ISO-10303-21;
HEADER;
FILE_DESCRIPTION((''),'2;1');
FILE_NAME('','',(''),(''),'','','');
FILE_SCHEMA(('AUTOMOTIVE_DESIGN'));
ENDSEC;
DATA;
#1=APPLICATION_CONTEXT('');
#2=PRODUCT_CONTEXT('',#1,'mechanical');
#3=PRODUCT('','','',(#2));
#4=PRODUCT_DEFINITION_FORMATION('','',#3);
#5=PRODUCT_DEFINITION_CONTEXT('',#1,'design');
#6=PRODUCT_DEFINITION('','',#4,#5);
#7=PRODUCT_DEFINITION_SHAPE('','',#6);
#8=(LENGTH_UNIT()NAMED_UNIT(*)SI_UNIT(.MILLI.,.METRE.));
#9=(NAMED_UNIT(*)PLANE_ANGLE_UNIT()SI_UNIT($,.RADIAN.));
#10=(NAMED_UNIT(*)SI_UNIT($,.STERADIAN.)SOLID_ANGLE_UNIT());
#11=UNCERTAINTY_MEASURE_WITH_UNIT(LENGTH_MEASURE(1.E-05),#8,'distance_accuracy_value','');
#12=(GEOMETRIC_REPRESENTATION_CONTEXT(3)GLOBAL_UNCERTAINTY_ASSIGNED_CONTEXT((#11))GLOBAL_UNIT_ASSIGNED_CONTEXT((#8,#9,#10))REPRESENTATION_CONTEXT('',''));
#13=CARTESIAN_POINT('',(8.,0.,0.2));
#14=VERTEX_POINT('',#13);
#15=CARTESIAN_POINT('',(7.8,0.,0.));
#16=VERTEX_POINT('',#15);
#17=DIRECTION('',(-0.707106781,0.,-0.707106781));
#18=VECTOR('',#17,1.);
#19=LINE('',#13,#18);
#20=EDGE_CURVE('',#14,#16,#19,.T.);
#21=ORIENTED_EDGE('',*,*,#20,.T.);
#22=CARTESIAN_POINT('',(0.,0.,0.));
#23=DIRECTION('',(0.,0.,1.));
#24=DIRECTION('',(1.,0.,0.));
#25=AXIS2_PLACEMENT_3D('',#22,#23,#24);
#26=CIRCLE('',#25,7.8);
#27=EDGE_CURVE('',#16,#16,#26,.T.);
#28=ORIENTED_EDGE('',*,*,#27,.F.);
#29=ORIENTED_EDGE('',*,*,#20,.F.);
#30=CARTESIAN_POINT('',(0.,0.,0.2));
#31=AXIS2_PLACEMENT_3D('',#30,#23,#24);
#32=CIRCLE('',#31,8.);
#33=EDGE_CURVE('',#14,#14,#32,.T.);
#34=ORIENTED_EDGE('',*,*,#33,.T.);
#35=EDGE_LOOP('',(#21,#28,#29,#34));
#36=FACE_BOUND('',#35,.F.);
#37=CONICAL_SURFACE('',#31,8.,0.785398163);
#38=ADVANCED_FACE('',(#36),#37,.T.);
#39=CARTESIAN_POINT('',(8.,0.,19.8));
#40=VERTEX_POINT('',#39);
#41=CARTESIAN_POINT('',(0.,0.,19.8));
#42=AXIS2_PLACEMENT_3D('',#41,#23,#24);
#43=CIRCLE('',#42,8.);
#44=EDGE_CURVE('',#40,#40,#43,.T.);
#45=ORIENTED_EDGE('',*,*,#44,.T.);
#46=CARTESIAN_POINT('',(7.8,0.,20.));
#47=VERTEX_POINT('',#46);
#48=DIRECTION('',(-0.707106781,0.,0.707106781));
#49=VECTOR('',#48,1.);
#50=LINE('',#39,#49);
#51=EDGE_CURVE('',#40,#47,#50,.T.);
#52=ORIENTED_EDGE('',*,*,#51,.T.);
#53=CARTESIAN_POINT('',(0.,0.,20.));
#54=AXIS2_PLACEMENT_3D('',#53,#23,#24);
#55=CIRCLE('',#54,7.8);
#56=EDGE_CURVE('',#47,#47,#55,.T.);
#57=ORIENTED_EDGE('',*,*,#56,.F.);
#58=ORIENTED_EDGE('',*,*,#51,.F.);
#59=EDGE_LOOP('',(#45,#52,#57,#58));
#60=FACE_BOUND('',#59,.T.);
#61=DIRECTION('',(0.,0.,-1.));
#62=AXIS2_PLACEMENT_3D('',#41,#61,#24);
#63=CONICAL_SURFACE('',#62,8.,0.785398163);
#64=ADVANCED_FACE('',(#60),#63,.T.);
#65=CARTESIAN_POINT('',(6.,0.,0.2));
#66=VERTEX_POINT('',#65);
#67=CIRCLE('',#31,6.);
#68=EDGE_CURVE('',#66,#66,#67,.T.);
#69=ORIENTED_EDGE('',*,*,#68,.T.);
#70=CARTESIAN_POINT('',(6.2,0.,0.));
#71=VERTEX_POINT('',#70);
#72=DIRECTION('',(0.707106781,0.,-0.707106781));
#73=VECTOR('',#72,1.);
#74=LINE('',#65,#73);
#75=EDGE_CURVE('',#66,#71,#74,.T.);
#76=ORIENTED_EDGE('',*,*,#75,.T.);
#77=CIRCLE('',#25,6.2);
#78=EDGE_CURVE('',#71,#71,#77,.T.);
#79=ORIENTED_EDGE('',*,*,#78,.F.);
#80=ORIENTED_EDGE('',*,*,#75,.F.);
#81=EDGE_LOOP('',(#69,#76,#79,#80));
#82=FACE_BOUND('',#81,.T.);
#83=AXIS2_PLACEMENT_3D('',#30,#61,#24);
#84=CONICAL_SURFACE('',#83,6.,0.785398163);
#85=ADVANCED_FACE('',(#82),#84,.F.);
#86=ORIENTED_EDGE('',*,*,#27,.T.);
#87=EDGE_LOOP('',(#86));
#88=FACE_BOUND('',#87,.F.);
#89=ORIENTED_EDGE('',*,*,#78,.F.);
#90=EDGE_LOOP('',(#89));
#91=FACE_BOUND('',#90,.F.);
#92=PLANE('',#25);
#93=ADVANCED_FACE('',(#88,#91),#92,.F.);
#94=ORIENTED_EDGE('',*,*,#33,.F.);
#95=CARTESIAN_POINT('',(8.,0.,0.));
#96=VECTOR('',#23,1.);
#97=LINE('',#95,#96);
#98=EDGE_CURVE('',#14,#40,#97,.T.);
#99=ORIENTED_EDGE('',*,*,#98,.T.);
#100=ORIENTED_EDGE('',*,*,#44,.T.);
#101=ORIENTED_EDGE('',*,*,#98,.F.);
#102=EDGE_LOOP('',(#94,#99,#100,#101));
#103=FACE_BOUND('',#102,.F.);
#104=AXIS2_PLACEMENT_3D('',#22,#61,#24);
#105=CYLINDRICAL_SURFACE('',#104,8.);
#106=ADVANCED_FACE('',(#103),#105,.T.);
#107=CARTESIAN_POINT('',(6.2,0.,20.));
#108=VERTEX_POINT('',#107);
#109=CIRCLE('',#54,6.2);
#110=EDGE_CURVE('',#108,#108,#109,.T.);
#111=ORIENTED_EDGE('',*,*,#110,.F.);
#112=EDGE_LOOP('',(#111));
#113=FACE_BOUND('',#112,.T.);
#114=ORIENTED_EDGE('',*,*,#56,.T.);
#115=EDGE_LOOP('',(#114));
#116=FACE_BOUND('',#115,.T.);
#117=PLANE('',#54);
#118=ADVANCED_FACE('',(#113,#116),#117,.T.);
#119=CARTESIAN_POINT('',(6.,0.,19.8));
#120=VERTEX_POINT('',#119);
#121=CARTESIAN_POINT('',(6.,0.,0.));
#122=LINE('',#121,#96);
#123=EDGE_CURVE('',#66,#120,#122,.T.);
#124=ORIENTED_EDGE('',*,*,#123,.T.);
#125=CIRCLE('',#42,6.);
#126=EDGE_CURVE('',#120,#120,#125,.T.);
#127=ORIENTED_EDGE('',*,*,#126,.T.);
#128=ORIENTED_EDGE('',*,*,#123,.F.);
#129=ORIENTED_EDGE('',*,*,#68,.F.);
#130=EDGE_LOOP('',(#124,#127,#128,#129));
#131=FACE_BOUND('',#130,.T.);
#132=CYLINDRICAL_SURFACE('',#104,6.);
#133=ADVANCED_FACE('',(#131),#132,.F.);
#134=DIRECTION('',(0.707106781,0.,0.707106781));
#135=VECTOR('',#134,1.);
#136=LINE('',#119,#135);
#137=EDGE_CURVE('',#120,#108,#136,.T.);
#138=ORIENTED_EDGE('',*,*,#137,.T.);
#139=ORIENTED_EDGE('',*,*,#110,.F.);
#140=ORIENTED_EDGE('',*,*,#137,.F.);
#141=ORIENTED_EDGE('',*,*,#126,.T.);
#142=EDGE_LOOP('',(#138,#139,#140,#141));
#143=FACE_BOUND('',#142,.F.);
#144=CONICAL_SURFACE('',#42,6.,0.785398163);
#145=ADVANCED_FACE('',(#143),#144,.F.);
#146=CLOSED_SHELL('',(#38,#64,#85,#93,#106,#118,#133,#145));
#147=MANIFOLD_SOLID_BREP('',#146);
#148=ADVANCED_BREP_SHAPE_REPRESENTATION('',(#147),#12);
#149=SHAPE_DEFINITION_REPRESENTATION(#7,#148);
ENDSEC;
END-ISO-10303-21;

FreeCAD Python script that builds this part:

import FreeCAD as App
import Part
import Sketcher
from FreeCAD import Vector


def edges_at(feature, points):
    """Names of the edges that pass closest to the given points."""
    edges = feature.Shape.Edges
    near = lambda p: min(range(len(edges)), key=lambda i: edges[i].distToShape(Part.Vertex(*p))[0])
    return sorted({f"Edge{near(p) + 1}" for p in points})

doc = App.newDocument("Part")
body = doc.addObject("PartDesign::Body", "Body")

sketch1 = body.newObject("Sketcher::SketchObject", "Sketch")
sketch1.AttachmentSupport = (doc.getObject("XY_Plane"), [""])
sketch1.MapMode = "FlatFace"
sketch1.addGeometry([
    Part.Circle(Vector(0, 0, 0), Vector(0, 0, 1), 8),
    Part.Circle(Vector(0, 0, 0), Vector(0, 0, 1), 6),
], False)
sketch1.addConstraint([
    Sketcher.Constraint("Coincident", 0, 3, -1, 1),
    Sketcher.Constraint("Coincident", 1, 3, -1, 1),
    Sketcher.Constraint("Diameter", 0, 16.0),
    Sketcher.Constraint("Diameter", 1, 12.0),
])
pad1 = body.newObject("PartDesign::Pad", "Pad")
pad1.Profile = sketch1
pad1.Length = 20
doc.recompute()

chamfer = body.newObject("PartDesign::Chamfer", "Chamfer")
chamfer.Base = (pad1, edges_at(pad1, [
    (-6, 0, 20),
    (-8, 0, 20),
    (-8, 0, 0),
    (-6, 0, 0),
]))
chamfer.Size = 0.2

doc.recompute()
